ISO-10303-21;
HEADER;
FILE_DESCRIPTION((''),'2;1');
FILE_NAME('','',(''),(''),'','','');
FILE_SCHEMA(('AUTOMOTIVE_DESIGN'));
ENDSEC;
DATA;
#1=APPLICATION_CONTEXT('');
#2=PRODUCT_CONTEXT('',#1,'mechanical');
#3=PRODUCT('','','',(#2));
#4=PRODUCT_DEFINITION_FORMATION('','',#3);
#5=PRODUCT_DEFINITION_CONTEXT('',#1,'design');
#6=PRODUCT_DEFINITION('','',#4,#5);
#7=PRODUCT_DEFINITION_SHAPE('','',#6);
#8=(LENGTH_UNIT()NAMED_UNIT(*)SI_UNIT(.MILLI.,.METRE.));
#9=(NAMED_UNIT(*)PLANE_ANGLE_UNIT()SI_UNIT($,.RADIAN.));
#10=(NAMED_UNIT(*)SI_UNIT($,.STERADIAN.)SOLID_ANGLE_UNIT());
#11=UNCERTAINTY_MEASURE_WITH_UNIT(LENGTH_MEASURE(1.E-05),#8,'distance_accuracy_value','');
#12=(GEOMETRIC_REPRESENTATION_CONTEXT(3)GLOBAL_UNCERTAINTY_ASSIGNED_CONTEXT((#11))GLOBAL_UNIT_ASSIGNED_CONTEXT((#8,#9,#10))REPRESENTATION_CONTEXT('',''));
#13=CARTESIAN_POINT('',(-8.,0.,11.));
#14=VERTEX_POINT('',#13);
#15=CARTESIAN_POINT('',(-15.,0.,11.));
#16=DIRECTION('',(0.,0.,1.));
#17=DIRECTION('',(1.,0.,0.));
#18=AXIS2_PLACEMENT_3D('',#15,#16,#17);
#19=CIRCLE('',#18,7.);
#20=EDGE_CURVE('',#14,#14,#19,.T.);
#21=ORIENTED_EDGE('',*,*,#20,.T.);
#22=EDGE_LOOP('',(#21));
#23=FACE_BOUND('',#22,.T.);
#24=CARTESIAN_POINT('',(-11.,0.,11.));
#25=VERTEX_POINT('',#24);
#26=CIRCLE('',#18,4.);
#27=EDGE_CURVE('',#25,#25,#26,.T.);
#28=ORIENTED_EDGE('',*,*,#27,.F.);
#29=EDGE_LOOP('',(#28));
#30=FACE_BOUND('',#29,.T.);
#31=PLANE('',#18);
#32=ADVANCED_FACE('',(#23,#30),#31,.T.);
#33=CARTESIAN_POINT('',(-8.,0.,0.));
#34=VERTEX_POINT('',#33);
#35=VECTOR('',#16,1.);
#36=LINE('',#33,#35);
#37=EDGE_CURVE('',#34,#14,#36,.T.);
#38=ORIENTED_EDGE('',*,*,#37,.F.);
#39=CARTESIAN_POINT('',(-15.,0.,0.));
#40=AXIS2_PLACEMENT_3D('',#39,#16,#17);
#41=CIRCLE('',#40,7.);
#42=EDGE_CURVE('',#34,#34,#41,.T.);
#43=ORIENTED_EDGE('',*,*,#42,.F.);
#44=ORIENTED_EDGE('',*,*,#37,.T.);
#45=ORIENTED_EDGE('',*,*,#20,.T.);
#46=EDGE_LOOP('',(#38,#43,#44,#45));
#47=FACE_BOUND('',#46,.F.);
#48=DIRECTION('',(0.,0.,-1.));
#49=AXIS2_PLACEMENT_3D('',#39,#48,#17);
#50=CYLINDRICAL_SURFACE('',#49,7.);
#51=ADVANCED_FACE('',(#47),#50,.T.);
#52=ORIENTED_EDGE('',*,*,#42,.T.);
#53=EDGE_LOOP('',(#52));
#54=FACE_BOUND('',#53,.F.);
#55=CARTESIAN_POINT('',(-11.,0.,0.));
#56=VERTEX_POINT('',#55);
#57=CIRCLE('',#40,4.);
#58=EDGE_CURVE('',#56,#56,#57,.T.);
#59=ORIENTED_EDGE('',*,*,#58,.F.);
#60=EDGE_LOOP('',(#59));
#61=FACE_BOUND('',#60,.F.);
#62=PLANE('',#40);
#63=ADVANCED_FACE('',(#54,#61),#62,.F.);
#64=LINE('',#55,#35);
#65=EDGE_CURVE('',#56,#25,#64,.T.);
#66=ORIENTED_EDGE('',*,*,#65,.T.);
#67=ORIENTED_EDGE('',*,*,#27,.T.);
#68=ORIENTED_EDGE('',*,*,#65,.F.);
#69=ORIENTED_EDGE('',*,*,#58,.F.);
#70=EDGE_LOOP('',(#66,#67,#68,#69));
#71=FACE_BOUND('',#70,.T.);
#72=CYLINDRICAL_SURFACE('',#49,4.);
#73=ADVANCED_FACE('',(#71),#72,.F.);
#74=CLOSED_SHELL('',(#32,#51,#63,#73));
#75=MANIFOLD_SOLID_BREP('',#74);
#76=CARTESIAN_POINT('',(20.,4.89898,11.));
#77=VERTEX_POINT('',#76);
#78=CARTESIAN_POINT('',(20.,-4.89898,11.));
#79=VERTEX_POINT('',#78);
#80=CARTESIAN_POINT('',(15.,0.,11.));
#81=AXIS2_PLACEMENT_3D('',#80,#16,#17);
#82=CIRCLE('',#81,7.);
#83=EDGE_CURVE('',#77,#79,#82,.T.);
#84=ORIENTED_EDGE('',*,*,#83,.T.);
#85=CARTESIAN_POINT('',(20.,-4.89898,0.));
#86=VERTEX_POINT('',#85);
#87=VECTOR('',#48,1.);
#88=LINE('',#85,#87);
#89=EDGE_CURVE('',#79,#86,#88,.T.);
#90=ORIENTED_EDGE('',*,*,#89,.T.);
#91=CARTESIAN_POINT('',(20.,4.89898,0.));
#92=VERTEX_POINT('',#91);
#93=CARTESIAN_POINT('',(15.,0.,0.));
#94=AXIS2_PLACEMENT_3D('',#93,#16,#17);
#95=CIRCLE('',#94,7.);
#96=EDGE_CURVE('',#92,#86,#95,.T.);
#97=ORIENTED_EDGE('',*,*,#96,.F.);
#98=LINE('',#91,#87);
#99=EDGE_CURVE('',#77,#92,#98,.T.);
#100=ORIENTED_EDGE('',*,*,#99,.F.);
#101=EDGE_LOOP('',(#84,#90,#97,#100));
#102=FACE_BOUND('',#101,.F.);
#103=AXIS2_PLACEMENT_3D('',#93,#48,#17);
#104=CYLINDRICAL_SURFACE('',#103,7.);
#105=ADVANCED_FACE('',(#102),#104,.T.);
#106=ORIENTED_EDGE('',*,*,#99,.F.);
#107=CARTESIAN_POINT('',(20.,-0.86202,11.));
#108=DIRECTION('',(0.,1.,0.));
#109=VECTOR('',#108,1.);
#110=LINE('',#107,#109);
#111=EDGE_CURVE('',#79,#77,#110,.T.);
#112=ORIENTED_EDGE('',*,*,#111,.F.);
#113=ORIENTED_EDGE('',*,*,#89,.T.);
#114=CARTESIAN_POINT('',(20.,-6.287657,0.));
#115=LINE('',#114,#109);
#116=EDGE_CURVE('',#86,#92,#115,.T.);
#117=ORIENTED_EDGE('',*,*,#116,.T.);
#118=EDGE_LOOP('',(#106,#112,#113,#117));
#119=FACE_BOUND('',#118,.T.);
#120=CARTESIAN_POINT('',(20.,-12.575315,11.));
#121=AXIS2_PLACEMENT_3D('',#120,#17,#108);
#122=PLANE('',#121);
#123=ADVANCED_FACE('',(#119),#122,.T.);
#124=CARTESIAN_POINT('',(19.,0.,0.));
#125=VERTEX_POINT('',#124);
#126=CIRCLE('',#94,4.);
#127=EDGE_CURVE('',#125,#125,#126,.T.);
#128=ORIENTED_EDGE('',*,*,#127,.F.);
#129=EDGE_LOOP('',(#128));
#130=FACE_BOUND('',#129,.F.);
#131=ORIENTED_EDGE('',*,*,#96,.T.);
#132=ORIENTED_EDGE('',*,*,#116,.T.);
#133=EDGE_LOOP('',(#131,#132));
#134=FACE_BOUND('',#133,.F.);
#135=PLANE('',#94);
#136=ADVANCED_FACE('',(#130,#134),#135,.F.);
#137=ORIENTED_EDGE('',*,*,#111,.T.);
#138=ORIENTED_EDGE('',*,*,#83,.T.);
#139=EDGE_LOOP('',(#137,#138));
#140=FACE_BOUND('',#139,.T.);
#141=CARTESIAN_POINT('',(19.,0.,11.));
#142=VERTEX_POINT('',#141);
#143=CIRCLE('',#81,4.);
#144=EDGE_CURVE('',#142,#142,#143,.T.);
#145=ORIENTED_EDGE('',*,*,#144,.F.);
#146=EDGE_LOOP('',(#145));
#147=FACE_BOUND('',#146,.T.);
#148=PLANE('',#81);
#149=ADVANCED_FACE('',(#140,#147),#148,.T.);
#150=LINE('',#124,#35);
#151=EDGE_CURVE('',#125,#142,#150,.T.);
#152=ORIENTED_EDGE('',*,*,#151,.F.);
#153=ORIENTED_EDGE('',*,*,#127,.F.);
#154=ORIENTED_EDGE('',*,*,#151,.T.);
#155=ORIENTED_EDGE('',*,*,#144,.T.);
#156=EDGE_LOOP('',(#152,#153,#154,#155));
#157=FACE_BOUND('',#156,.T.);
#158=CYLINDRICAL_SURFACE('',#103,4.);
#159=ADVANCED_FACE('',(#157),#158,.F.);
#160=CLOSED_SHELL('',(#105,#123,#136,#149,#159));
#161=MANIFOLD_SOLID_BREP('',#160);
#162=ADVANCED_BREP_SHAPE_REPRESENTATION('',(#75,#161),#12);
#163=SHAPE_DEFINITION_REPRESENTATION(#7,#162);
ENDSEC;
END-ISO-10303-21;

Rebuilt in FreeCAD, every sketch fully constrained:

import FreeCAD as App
import Part
import Sketcher


def add_polygon(sketch, points):
    """Adds a closed chain of lines whose ends are joined by coincident constraints."""
    first, n = sketch.GeometryCount, len(points)
    for a, b in zip(points, points[1:] + points[:1]):
        sketch.addGeometry(Part.LineSegment(App.Vector(*a, 0), App.Vector(*b, 0)), False)
    for i in range(n):
        sketch.addConstraint(Sketcher.Constraint("Coincident", first + i, 2, first + (i + 1) % n, 1))

doc = App.newDocument("Part")
body = doc.addObject("PartDesign::Body", "Body")
body.AllowCompound = True

# Sketch on XY plane
sketch1 = body.newObject("Sketcher::SketchObject", "Sketch")
sketch1.AttachmentSupport = (doc.getObject("XY_Plane"), [""])
sketch1.MapMode = "FlatFace"
sketch1.addGeometry([
    Part.Circle(App.Vector(-15, 0, 0), App.Vector(0, 0, 1), 7),
    Part.Circle(App.Vector(-15, 0, 0), App.Vector(0, 0, 1), 4),
    Part.Circle(App.Vector(15, 0, 0), App.Vector(0, 0, 1), 7),
    Part.Circle(App.Vector(15, 0, 0), App.Vector(0, 0, 1), 4),
], False)
sketch1.addConstraint([
    Sketcher.Constraint("Coincident", 1, 3, 0, 3),
    Sketcher.Constraint("Coincident", 3, 3, 2, 3),
    Sketcher.Constraint("Equal", 0, 2),
    Sketcher.Constraint("Equal", 1, 3),
    Sketcher.Constraint("Symmetric", 0, 3, 2, 3, -1, 1),
    Sketcher.Constraint("PointOnObject", 0, 3, -1),
    Sketcher.Constraint("Diameter", 0, 14.0),
    Sketcher.Constraint("Diameter", 1, 8.0),
    Sketcher.Constraint("DistanceX", 0, 3, -1, 1, 15.0),
])
pad1 = body.newObject("PartDesign::Pad", "Pad")
pad1.Profile = sketch1
pad1.Length = 11

# Sketch on XY plane
sketch2 = body.newObject("Sketcher::SketchObject", "Sketch001")
sketch2.AttachmentSupport = (doc.getObject("XY_Plane"), [""])
sketch2.MapMode = "FlatFace"
sketch2.AttachmentOffset = App.Placement(App.Vector(0, 0, 11), App.Rotation())
add_polygon(sketch2, [(20, 11), (20, -13), (26, -13), (26, 11)])  # lines 0-3
sketch2.addConstraint([
    Sketcher.Constraint("Vertical", 0),
    Sketcher.Constraint("Horizontal", 1),
    Sketcher.Constraint("Vertical", 2),
    Sketcher.Constraint("Horizontal", 3),
    Sketcher.Constraint("DistanceX", -1, 1, 0, 2, 20.0),
    Sketcher.Constraint("DistanceX", 1, 1, 1, 2, 5.949609),
    Sketcher.Constraint("DistanceY", 0, 2, 0, 1, 23.42659),
    Sketcher.Constraint("DistanceY", 0, 2, -1, 1, 12.575315),
])
pocket1 = body.newObject("PartDesign::Pocket", "Pocket")
pocket1.Profile = sketch2
pocket1.Type = "ThroughAll"

doc.recompute()
